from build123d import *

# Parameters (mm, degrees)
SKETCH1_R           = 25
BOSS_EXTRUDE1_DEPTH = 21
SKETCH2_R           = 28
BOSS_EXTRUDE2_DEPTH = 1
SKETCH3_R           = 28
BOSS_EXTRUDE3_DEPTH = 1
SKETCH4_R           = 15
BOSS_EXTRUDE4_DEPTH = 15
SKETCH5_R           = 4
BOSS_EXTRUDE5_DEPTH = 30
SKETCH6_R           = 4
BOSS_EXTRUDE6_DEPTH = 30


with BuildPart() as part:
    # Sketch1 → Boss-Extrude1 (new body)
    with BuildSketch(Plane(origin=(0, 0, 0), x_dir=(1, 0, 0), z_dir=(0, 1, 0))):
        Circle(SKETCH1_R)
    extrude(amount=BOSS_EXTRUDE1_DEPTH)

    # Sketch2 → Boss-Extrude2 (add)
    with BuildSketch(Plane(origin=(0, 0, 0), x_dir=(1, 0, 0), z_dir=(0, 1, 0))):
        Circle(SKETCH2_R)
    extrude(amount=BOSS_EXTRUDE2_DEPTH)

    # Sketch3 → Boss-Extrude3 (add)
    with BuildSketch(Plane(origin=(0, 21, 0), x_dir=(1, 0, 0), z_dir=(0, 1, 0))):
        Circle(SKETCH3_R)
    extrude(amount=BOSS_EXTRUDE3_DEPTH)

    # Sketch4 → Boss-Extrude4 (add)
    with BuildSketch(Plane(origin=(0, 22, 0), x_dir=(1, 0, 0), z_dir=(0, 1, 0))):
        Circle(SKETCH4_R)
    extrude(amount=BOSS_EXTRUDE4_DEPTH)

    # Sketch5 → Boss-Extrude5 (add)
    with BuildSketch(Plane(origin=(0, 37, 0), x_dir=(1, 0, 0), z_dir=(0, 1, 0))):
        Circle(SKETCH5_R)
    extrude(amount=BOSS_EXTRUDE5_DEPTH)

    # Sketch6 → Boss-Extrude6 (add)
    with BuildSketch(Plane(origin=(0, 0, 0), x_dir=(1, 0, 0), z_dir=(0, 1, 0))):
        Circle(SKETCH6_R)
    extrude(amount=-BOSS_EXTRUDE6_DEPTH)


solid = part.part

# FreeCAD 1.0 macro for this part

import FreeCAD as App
import Part
import Sketcher

V = App.Vector
Q = App.Units.Quantity

doc = App.newDocument("Part")
body = doc.addObject("PartDesign::Body", "Body")

sketch1 = doc.addObject("Sketcher::SketchObject", "Sketch")
body.addObject(sketch1)
sketch1.AttachmentSupport = (doc.XZ_Plane, [""])
sketch1.MapMode = "FlatFace"
sketch1.addGeometry(Part.Circle(V(0, 0, 0), V(0, 0, 1), 25), False)
sketch1.addConstraint([
    Sketcher.Constraint("Coincident", 0, 3, -1, 1),
    Sketcher.Constraint("Diameter", 0, Q("50 mm")),
])
pad1 = doc.addObject("PartDesign::Pad", "Pad")
body.addObject(pad1)
pad1.Profile = sketch1
pad1.Length = 21
pad1.Reversed = True

sketch2 = doc.addObject("Sketcher::SketchObject", "Sketch001")
body.addObject(sketch2)
sketch2.AttachmentSupport = (doc.XZ_Plane, [""])
sketch2.MapMode = "FlatFace"
sketch2.addGeometry(Part.Circle(V(0, 0, 0), V(0, 0, 1), 28), False)
sketch2.addConstraint([
    Sketcher.Constraint("Coincident", 0, 3, -1, 1),
    Sketcher.Constraint("Diameter", 0, Q("56 mm")),
])
pad2 = doc.addObject("PartDesign::Pad", "Pad001")
body.addObject(pad2)
pad2.Profile = sketch2
pad2.Length = 1
pad2.Reversed = True

sketch3 = doc.addObject("Sketcher::SketchObject", "Sketch002")
body.addObject(sketch3)
sketch3.AttachmentSupport = (doc.XZ_Plane, [""])
sketch3.MapMode = "FlatFace"
sketch3.AttachmentOffset = App.Placement(V(0, 0, -21), App.Rotation())
sketch3.addGeometry(Part.Circle(V(0, 0, 0), V(0, 0, 1), 28), False)
sketch3.addConstraint([
    Sketcher.Constraint("Coincident", 0, 3, -1, 1),
    Sketcher.Constraint("Diameter", 0, Q("56 mm")),
])
pad3 = doc.addObject("PartDesign::Pad", "Pad002")
body.addObject(pad3)
pad3.Profile = sketch3
pad3.Length = 1
pad3.Reversed = True

sketch4 = doc.addObject("Sketcher::SketchObject", "Sketch003")
body.addObject(sketch4)
sketch4.AttachmentSupport = (doc.XZ_Plane, [""])
sketch4.MapMode = "FlatFace"
sketch4.AttachmentOffset = App.Placement(V(0, 0, -22), App.Rotation())
sketch4.addGeometry(Part.Circle(V(0, 0, 0), V(0, 0, 1), 15), False)
sketch4.addConstraint([
    Sketcher.Constraint("Coincident", 0, 3, -1, 1),
    Sketcher.Constraint("Diameter", 0, Q("30 mm")),
])
pad4 = doc.addObject("PartDesign::Pad", "Pad003")
body.addObject(pad4)
pad4.Profile = sketch4
pad4.Length = 15
pad4.Reversed = True

sketch5 = doc.addObject("Sketcher::SketchObject", "Sketch004")
body.addObject(sketch5)
sketch5.AttachmentSupport = (doc.XZ_Plane, [""])
sketch5.MapMode = "FlatFace"
sketch5.AttachmentOffset = App.Placement(V(0, 0, -37), App.Rotation())
sketch5.addGeometry(Part.Circle(V(0, 0, 0), V(0, 0, 1), 4), False)
sketch5.addConstraint([
    Sketcher.Constraint("Coincident", 0, 3, -1, 1),
    Sketcher.Constraint("Diameter", 0, Q("8 mm")),
])
pad5 = doc.addObject("PartDesign::Pad", "Pad004")
body.addObject(pad5)
pad5.Profile = sketch5
pad5.Length = 30
pad5.Reversed = True

sketch6 = doc.addObject("Sketcher::SketchObject", "Sketch005")
body.addObject(sketch6)
sketch6.AttachmentSupport = (doc.XZ_Plane, [""])
sketch6.MapMode = "FlatFace"
sketch6.addGeometry(Part.Circle(V(0, 0, 0), V(0, 0, 1), 4), False)
sketch6.addConstraint([
    Sketcher.Constraint("Coincident", 0, 3, -1, 1),
    Sketcher.Constraint("Diameter", 0, Q("8 mm")),
])
pad6 = doc.addObject("PartDesign::Pad", "Pad005")
body.addObject(pad6)
pad6.Profile = sketch6
pad6.Length = 30

doc.recompute()
